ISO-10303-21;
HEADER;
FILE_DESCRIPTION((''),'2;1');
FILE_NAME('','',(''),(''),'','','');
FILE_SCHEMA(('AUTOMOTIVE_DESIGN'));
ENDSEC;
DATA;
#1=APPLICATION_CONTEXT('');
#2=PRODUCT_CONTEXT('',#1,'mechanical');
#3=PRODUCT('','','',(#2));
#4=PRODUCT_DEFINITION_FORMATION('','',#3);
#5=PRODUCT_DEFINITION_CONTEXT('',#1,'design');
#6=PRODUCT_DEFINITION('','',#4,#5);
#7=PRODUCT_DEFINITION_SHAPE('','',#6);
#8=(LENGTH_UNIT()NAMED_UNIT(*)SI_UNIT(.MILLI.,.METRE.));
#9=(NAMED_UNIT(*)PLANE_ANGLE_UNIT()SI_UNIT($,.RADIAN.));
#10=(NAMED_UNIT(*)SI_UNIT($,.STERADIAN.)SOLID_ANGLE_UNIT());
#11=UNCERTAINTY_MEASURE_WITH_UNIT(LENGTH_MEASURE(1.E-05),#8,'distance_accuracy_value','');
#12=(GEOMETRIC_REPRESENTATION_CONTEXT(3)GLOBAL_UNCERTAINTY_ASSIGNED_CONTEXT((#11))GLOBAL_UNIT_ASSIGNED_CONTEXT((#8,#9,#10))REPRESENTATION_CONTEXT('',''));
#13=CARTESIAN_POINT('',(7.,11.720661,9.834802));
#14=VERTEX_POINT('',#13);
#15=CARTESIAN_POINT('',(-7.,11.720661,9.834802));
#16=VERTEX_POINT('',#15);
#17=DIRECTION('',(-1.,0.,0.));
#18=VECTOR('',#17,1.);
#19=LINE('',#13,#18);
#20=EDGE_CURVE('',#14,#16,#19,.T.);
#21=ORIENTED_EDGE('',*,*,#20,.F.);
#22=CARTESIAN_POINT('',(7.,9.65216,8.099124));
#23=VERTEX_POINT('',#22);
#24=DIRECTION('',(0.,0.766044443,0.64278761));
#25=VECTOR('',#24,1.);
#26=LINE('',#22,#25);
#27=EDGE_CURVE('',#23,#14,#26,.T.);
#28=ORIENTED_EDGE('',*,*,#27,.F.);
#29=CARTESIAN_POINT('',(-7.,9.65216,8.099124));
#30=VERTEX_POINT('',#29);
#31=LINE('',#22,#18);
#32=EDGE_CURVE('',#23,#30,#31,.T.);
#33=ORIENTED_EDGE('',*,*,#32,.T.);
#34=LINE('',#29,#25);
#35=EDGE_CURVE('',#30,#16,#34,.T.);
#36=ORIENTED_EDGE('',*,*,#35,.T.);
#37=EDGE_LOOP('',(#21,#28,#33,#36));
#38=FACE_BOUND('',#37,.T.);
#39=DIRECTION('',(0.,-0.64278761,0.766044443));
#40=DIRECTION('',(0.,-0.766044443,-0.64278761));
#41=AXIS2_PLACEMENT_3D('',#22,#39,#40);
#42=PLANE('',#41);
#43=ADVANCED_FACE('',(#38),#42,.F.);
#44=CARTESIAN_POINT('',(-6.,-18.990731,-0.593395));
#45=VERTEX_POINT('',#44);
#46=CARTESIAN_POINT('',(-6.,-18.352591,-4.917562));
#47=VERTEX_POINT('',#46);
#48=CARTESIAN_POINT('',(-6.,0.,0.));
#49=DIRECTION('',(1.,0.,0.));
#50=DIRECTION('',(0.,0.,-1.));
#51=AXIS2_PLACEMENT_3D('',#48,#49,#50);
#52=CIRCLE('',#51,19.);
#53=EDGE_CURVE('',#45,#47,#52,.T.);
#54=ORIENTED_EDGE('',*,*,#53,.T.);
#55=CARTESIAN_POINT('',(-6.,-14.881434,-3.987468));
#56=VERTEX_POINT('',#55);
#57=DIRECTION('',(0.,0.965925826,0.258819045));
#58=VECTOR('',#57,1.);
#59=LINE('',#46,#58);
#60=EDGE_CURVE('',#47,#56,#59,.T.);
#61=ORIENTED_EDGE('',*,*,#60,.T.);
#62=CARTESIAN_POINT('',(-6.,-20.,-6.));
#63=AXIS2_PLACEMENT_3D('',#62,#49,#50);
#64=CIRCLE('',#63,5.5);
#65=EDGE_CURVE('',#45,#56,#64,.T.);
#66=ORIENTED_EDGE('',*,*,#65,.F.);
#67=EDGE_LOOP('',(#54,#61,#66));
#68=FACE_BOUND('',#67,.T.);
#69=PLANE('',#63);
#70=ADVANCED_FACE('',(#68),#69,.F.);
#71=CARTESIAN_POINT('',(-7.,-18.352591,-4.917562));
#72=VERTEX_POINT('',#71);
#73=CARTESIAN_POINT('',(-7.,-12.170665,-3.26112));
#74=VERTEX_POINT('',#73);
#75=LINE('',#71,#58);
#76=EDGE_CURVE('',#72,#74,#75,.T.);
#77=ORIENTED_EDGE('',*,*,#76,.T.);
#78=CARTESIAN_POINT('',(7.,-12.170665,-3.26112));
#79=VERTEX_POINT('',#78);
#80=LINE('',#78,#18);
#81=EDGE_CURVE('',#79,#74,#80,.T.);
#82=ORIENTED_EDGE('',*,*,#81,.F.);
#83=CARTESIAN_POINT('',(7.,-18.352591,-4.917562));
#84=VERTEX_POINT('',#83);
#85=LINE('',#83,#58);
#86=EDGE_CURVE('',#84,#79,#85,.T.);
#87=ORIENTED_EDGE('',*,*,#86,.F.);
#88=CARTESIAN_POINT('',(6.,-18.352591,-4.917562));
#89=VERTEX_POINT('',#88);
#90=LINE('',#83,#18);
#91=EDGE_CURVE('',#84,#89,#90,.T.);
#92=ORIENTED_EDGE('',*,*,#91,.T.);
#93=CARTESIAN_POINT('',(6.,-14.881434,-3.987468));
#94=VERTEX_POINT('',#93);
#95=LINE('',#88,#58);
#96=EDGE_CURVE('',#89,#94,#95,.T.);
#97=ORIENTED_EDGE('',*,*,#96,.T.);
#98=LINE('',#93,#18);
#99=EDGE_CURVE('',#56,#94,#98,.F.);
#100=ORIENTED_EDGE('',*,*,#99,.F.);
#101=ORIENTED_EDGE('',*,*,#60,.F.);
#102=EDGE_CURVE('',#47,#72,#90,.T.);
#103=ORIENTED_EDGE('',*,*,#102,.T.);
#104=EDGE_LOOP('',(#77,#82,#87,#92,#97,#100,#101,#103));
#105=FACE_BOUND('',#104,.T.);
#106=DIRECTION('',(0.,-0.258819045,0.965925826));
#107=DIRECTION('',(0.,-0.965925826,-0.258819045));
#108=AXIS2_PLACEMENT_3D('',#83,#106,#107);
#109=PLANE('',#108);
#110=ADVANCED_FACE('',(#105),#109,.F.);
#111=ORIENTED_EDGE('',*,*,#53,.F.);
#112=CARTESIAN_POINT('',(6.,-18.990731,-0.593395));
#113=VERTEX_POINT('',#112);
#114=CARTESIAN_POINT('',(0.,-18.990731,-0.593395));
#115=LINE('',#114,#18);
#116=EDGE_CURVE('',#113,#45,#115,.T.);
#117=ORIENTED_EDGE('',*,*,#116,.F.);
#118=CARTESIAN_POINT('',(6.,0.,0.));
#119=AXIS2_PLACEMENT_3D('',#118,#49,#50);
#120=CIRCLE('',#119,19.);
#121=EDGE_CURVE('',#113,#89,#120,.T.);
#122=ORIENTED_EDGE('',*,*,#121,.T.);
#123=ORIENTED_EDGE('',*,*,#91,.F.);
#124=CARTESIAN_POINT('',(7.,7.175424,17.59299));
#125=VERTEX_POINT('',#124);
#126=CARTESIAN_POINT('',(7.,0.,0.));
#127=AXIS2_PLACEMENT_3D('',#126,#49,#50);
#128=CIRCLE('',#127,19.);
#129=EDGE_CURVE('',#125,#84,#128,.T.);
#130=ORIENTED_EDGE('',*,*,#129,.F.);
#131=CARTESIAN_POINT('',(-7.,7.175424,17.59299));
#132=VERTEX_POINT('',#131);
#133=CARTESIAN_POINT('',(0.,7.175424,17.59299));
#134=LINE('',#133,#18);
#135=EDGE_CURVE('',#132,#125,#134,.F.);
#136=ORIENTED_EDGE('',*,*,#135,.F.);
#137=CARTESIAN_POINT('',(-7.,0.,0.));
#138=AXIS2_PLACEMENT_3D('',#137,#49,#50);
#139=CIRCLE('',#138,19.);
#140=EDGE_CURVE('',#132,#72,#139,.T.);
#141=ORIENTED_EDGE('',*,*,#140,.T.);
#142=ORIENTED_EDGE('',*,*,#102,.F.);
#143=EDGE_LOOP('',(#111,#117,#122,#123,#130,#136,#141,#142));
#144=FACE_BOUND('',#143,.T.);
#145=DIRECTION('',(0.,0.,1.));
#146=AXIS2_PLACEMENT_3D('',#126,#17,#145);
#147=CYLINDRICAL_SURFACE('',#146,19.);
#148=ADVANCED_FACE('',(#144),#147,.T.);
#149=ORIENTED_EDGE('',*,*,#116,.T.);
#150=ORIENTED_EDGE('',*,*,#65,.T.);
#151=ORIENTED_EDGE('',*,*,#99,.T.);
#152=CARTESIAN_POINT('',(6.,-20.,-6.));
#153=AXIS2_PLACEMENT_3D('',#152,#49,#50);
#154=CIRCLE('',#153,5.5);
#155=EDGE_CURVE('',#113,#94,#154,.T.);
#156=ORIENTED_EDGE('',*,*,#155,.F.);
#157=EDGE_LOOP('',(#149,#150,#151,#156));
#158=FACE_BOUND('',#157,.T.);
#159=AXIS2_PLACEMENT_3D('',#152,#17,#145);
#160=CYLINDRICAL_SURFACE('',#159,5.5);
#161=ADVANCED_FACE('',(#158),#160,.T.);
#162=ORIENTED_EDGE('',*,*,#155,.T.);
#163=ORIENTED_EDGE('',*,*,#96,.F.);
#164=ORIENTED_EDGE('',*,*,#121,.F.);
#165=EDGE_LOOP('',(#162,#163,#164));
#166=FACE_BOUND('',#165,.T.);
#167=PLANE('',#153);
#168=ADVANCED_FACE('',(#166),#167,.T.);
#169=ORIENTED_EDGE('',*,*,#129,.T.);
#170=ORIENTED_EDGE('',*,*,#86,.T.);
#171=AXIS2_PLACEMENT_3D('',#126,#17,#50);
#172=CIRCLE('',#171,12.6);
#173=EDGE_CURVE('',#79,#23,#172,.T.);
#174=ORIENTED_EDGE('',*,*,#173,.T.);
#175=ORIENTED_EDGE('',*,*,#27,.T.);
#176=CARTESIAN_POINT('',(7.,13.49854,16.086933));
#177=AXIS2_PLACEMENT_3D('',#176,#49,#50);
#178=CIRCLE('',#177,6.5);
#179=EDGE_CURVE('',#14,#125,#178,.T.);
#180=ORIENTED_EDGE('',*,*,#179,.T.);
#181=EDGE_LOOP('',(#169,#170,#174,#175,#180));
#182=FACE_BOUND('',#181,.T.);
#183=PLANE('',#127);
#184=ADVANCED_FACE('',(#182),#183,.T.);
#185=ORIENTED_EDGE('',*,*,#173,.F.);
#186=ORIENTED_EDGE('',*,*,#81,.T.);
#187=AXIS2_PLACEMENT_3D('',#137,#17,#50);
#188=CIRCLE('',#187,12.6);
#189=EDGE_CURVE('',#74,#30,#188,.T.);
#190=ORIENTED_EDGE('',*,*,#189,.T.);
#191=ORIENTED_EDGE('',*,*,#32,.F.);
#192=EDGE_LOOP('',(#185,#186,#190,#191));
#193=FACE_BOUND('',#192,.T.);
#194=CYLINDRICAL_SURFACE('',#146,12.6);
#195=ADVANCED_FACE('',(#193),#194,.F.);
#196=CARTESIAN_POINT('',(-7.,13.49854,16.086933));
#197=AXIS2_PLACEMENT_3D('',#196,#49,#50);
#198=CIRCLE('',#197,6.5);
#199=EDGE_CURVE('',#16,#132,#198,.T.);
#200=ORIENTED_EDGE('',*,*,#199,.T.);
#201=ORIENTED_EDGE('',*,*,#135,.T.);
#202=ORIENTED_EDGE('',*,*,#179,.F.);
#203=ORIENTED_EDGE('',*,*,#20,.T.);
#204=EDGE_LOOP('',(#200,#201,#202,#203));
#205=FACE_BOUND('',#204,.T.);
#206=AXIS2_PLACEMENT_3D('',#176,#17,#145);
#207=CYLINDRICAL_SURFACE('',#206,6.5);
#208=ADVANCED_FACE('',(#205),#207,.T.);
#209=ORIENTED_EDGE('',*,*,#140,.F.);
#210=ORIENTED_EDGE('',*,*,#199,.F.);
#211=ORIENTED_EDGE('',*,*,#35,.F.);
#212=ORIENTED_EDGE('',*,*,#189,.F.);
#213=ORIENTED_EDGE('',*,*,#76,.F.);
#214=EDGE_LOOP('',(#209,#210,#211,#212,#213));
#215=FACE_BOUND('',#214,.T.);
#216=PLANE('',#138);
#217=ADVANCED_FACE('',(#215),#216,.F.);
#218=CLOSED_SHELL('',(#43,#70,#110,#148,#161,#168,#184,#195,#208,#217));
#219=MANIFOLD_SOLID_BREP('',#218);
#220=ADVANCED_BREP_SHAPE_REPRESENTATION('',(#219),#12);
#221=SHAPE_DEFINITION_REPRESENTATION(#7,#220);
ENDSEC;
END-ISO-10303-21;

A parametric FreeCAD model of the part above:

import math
import FreeCAD as App
import Part
import Sketcher
Q = App.Units.Quantity

doc = App.newDocument("Part")
body = doc.addObject("PartDesign::Body", "Body")

# Sketch on YZ plane
sketch1 = body.newObject("Sketcher::SketchObject", "Sketch")
sketch1.AttachmentSupport = (doc.getObject("YZ_Plane"), [""])
sketch1.MapMode = "FlatFace"
sketch1.AttachmentOffset = App.Placement(App.Vector(0, 0, -7), App.Rotation())
sketch1.addGeometry([
    Part.LineSegment(App.Vector(-18, -5, 0), App.Vector(-12, -3, 0)),
    Part.ArcOfCircle(Part.Circle(App.Vector(0, 0, 0), App.Vector(0, 0, 1), 13), math.radians(40), math.radians(195)),
    Part.LineSegment(App.Vector(10, 8, 0), App.Vector(15, 12, 0)),
    Part.ArcOfCircle(Part.Circle(App.Vector(0, 0, 0), App.Vector(0, 0, 1), 19), math.radians(40), math.radians(195)),
], False)
sketch1.addConstraint([
    Sketcher.Constraint("Coincident", 0, 2, 1, 2),
    Sketcher.Constraint("Coincident", 1, 1, 2, 1),
    Sketcher.Constraint("Coincident", 2, 2, 3, 1),
    Sketcher.Constraint("Coincident", 3, 2, 0, 1),
    Sketcher.Constraint("Coincident", 1, 3, -1, 1),
    Sketcher.Constraint("Coincident", 3, 3, -1, 1),
    Sketcher.Constraint("Radius", 3, Q("19 mm")),
    Sketcher.Constraint("Radius", 1, Q("12.6 mm")),
    Sketcher.Constraint("Angle", 0, Q("15 deg")),
    Sketcher.Constraint("Angle", 2, Q("40 deg")),
    Sketcher.Constraint("DistanceY", 0, 2, -1, 1, Q("3.26112 mm")),
    Sketcher.Constraint("DistanceX", -1, 1, 1, 1, Q("9.65216 mm")),
])
pad1 = body.newObject("PartDesign::Pad", "Pad")
pad1.Profile = sketch1
pad1.Length = 14

# Sketch on YZ plane
sketch2 = body.newObject("Sketcher::SketchObject", "Sketch001")
sketch2.AttachmentSupport = (doc.getObject("YZ_Plane"), [""])
sketch2.MapMode = "FlatFace"
sketch2.AttachmentOffset = App.Placement(App.Vector(0, 0, -7), App.Rotation())
sketch2.addGeometry(Part.Circle(App.Vector(13, 16, 0), App.Vector(0, 0, 1), 6), False)
sketch2.addConstraint([
    Sketcher.Constraint("Diameter", 0, Q("13 mm")),
    Sketcher.Constraint("DistanceX", -1, 1, 0, 3, Q("13.49854 mm")),
    Sketcher.Constraint("DistanceY", -1, 1, 0, 3, Q("16.086933 mm")),
])
pad2 = body.newObject("PartDesign::Pad", "Pad001")
pad2.Profile = sketch2
pad2.Length = 14

# Sketch on YZ plane
sketch3 = body.newObject("Sketcher::SketchObject", "Sketch002")
sketch3.AttachmentSupport = (doc.getObject("YZ_Plane"), [""])
sketch3.MapMode = "FlatFace"
sketch3.AttachmentOffset = App.Placement(App.Vector(0, 0, -6), App.Rotation())
sketch3.addGeometry(Part.Circle(App.Vector(-20, -6, 0), App.Vector(0, 0, 1), 6), False)
sketch3.addConstraint([
    Sketcher.Constraint("Diameter", 0, Q("11 mm")),
    Sketcher.Constraint("DistanceX", 0, 3, -1, 1, Q("20 mm")),
    Sketcher.Constraint("DistanceY", 0, 3, -1, 1, Q("6 mm")),
])
pad3 = body.newObject("PartDesign::Pad", "Pad002")
pad3.Profile = sketch3
pad3.Length = 12

doc.recompute()
